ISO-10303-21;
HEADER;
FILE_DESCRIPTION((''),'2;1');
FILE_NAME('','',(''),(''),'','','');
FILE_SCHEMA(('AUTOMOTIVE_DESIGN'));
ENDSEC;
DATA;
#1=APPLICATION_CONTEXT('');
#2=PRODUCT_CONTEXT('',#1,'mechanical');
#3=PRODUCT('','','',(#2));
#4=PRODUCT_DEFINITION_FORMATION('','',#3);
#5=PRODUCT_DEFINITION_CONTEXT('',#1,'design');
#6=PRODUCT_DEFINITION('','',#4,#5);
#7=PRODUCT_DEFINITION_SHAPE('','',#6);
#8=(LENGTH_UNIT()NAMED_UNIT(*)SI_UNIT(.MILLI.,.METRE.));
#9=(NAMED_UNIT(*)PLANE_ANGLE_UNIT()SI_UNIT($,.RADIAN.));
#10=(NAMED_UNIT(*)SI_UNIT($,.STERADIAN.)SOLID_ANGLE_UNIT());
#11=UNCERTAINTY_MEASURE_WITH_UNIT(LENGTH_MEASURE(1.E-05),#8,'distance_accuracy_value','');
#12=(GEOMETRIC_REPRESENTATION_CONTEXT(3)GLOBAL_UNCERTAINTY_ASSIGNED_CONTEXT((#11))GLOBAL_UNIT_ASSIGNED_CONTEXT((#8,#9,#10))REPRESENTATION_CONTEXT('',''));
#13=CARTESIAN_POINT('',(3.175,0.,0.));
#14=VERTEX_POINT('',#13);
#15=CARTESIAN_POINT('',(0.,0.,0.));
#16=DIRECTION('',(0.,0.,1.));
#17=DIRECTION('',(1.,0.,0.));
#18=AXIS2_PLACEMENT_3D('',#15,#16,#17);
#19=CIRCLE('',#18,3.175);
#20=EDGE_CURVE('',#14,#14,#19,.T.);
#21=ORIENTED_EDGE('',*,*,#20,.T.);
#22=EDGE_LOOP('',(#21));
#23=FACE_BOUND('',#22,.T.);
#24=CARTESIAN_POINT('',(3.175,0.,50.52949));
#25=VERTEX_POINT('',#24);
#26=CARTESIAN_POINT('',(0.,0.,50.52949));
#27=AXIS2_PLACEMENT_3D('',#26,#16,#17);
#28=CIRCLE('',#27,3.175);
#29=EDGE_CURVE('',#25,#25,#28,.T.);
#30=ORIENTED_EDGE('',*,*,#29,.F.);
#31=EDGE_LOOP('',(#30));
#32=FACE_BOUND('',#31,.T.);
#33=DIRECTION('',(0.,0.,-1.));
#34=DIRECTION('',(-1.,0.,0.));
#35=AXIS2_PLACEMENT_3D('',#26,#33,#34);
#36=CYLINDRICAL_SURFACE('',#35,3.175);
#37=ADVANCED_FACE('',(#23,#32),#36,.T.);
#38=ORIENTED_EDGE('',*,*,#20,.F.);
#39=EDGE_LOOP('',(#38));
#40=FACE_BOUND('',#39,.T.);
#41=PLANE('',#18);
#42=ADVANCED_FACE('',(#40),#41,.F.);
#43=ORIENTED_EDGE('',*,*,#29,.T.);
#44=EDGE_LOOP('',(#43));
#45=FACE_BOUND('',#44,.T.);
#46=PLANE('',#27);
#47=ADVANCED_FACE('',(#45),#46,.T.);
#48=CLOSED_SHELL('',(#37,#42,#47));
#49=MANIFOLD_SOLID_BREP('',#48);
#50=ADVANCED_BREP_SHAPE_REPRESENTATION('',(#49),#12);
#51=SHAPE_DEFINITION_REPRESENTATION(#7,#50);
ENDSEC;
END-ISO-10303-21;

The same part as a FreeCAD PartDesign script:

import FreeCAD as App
import Part
import Sketcher
Q = App.Units.Quantity

doc = App.newDocument("Part")
body = doc.addObject("PartDesign::Body", "Body")

sketch1 = body.newObject("Sketcher::SketchObject", "Sketch")
sketch1.AttachmentSupport = (doc.getObject("XY_Plane"), [""])
sketch1.MapMode = "FlatFace"
sketch1.addGeometry(Part.Circle(App.Vector(0, 0, 0), App.Vector(0, 0, 1), 3.2), False)
sketch1.addConstraint([
    Sketcher.Constraint("Coincident", 0, 3, -1, 1),
    Sketcher.Constraint("Diameter", 0, Q("0.25 in")),
])
pad1 = body.newObject("PartDesign::Pad", "Pad")
pad1.Profile = sketch1
pad1.Length = 50.52949

doc.recompute()
